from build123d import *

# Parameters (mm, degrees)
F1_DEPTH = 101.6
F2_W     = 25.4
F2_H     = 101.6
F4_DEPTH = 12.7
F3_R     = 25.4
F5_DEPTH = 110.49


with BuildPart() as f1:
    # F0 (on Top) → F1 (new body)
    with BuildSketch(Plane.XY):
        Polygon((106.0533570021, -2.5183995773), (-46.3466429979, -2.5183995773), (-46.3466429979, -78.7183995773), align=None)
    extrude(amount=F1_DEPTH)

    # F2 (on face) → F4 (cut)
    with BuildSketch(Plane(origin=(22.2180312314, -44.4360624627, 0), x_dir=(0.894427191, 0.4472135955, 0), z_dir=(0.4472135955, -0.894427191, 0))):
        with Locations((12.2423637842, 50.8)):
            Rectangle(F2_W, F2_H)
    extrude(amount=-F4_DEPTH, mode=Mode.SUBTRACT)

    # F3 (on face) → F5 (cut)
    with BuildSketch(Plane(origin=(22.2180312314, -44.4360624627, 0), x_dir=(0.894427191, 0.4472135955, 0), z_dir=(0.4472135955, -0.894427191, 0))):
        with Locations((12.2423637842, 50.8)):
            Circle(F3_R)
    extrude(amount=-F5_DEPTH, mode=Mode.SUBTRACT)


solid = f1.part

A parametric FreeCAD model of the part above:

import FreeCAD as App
import Part
import Sketcher
Q = App.Units.Quantity

doc = App.newDocument("Part")
body = doc.addObject("PartDesign::Body", "Body")

# Sketch on XY plane
sketch1 = doc.addObject("Sketcher::SketchObject", "Sketch")
body.addObject(sketch1)
sketch1.AttachmentSupport = (doc.XY_Plane, [""])
sketch1.MapMode = "FlatFace"
sketch1.addGeometry(Part.LineSegment(App.Vector(106, -3, 0), App.Vector(-46, -3, 0)), False)
sketch1.addGeometry(Part.LineSegment(App.Vector(-46, -3, 0), App.Vector(-46, -79, 0)), False)
sketch1.addGeometry(Part.LineSegment(App.Vector(-46, -79, 0), App.Vector(106, -3, 0)), False)
sketch1.addConstraint(Sketcher.Constraint("Coincident", 0, 2, 1, 1))
sketch1.addConstraint(Sketcher.Constraint("Coincident", 1, 2, 2, 1))
sketch1.addConstraint(Sketcher.Constraint("Coincident", 2, 2, 0, 1))
sketch1.addConstraint(Sketcher.Constraint("Horizontal", 0))
sketch1.addConstraint(Sketcher.Constraint("Vertical", 1))
sketch1.addConstraint(Sketcher.Constraint("DistanceX", 0, 2, 0, 1, Q("6 in")))
sketch1.addConstraint(Sketcher.Constraint("DistanceY", 1, 2, 1, 1, Q("3 in")))
sketch1.addConstraint(Sketcher.Constraint("DistanceY", 0, 2, -1, 1, 2.5184))
sketch1.addConstraint(Sketcher.Constraint("DistanceX", 0, 2, -1, 1, 46.346643))
pad1 = doc.addObject("PartDesign::Pad", "Pad")
body.addObject(pad1)
pad1.Profile = sketch1
pad1.Length = Q("4 in")

# Sketch on an angled plane
sketch2 = doc.addObject("Sketcher::SketchObject", "Sketch001")
body.addObject(sketch2)
sketch2.Placement = App.Placement(App.Vector(22.218031, -44.436062, 0), App.Rotation(App.Vector(0.894427191, 0.447213595, 0), App.Vector(0, 0, 1), App.Vector(0.447213595, -0.894427191, 0), "ZXY"))
sketch2.addGeometry(Part.LineSegment(App.Vector(0, 102, 0), App.Vector(0, 0, 0)), False)
sketch2.addGeometry(Part.LineSegment(App.Vector(0, 0, 0), App.Vector(25, 0, 0)), False)
sketch2.addGeometry(Part.LineSegment(App.Vector(25, 0, 0), App.Vector(25, 102, 0)), False)
sketch2.addGeometry(Part.LineSegment(App.Vector(25, 102, 0), App.Vector(0, 102, 0)), False)
sketch2.addConstraint(Sketcher.Constraint("Coincident", 0, 2, 1, 1))
sketch2.addConstraint(Sketcher.Constraint("Coincident", 1, 2, 2, 1))
sketch2.addConstraint(Sketcher.Constraint("Coincident", 2, 2, 3, 1))
sketch2.addConstraint(Sketcher.Constraint("Coincident", 3, 2, 0, 1))
sketch2.addConstraint(Sketcher.Constraint("Vertical", 0))
sketch2.addConstraint(Sketcher.Constraint("Horizontal", 1))
sketch2.addConstraint(Sketcher.Constraint("Vertical", 2))
sketch2.addConstraint(Sketcher.Constraint("Horizontal", 3))
sketch2.addConstraint(Sketcher.Constraint("PointOnObject", 0, 2, -1))
sketch2.addConstraint(Sketcher.Constraint("DistanceX", 1, 1, 1, 2, Q("1 in")))
sketch2.addConstraint(Sketcher.Constraint("DistanceY", 0, 2, 0, 1, Q("4 in")))
sketch2.addConstraint(Sketcher.Constraint("DistanceX", 0, 2, -1, 1, 0.457636))
pocket1 = doc.addObject("PartDesign::Pocket", "Pocket")
body.addObject(pocket1)
pocket1.Profile = sketch2
pocket1.Length = Q("0.5 in")

# Sketch on an angled plane
sketch3 = doc.addObject("Sketcher::SketchObject", "Sketch002")
body.addObject(sketch3)
sketch3.Placement = App.Placement(App.Vector(22.218031, -44.436062, 0), App.Rotation(App.Vector(0.894427191, 0.447213595, 0), App.Vector(0, 0, 1), App.Vector(0.447213595, -0.894427191, 0), "ZXY"))
sketch3.addGeometry(Part.Circle(App.Vector(12, 51, 0), App.Vector(0, 0, 1), 25), False)
sketch3.addConstraint(Sketcher.Constraint("Diameter", 0, Q("2 in")))
sketch3.addConstraint(Sketcher.Constraint("DistanceY", -1, 1, 0, 3, Q("2 in")))
sketch3.addConstraint(Sketcher.Constraint("DistanceX", -1, 1, 0, 3, 12.242364))
pocket2 = doc.addObject("PartDesign::Pocket", "Pocket001")
body.addObject(pocket2)
pocket2.Profile = sketch3
pocket2.Length = Q("4.35 in")

doc.recompute()
